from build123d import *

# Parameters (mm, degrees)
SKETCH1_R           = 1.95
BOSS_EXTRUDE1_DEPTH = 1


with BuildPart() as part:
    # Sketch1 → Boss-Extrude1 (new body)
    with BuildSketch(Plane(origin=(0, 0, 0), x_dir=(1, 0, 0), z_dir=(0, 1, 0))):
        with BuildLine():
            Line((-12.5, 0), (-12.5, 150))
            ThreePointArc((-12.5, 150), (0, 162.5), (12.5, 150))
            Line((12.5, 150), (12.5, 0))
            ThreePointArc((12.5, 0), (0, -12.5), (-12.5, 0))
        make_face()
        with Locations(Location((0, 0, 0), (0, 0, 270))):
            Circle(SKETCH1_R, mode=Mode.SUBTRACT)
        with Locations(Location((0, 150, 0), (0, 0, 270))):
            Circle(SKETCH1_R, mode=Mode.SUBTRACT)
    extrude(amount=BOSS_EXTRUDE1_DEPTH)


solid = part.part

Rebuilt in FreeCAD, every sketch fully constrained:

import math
import FreeCAD as App
import Part
import Sketcher

doc = App.newDocument("Part")
params = doc.addObject("Spreadsheet::Sheet", "Params")
for row, (alias, value) in enumerate([
    ("sketch1_diameter", "3.9 mm"),
    ("sketch1_radius", "12.5 mm"),
    ("sketch1_height", "150 mm"),
    ("pad1_length", "1 mm"),
], start=1):
    params.set(f"A{row}", alias)
    params.set(f"B{row}", "=" + value)
    params.setAlias(f"B{row}", alias)

body = doc.addObject("PartDesign::Body", "Body")

# Sketch on XZ plane
sketch1 = doc.addObject("Sketcher::SketchObject", "Sketch")
body.addObject(sketch1)
sketch1.AttachmentSupport = (doc.XZ_Plane, [""])
sketch1.MapMode = "FlatFace"
sketch1.addGeometry([
    Part.LineSegment(App.Vector(-12.5, -150, 0), App.Vector(-12.5, 0, 0)),  # 0
    Part.ArcOfCircle(Part.Circle(App.Vector(0, 0, 0), App.Vector(0, 0, 1), 12.5), math.radians(0), math.radians(180)),  # 1
    Part.LineSegment(App.Vector(12.5, 0, 0), App.Vector(12.5, -150, 0)),  # 2
    Part.ArcOfCircle(Part.Circle(App.Vector(0, -150, 0), App.Vector(0, 0, 1), 12.5), math.radians(180), math.radians(360)),  # 3
    Part.Circle(App.Vector(0, 0, 0), App.Vector(0, 0, 1), 1.9),  # 4
    Part.Circle(App.Vector(0, -150, 0), App.Vector(0, 0, 1), 1.9),  # 5
], False)
sketch1.addConstraint([
    Sketcher.Constraint("Tangent", 0, 2, 1, 2),
    Sketcher.Constraint("Tangent", 1, 1, 2, 1),
    Sketcher.Constraint("Tangent", 2, 2, 3, 2),
    Sketcher.Constraint("Tangent", 3, 1, 0, 1),
    Sketcher.Constraint("Vertical", 0),
    Sketcher.Constraint("Vertical", 2),
    Sketcher.Constraint("Coincident", 1, 3, -1, 1),
    Sketcher.Constraint("Coincident", 4, 3, -1, 1),
    Sketcher.Constraint("Coincident", 5, 3, 3, 3),
    Sketcher.Constraint("Equal", 4, 5),
    Sketcher.Constraint("Diameter", 4, 3.9),
    Sketcher.Constraint("Radius", 1, 12.5),
    Sketcher.Constraint("DistanceY", 0, 1, 0, 2, 150.0),
])
sketch1.setExpression("Constraints[10]", "Params.sketch1_diameter")
sketch1.setExpression("Constraints[11]", "Params.sketch1_radius")
sketch1.setExpression("Constraints[12]", "Params.sketch1_height")
pad1 = doc.addObject("PartDesign::Pad", "Pad")
body.addObject(pad1)
pad1.Profile = sketch1
pad1.setExpression("Length", "Params.pad1_length")
pad1.Reversed = True

doc.recompute()
